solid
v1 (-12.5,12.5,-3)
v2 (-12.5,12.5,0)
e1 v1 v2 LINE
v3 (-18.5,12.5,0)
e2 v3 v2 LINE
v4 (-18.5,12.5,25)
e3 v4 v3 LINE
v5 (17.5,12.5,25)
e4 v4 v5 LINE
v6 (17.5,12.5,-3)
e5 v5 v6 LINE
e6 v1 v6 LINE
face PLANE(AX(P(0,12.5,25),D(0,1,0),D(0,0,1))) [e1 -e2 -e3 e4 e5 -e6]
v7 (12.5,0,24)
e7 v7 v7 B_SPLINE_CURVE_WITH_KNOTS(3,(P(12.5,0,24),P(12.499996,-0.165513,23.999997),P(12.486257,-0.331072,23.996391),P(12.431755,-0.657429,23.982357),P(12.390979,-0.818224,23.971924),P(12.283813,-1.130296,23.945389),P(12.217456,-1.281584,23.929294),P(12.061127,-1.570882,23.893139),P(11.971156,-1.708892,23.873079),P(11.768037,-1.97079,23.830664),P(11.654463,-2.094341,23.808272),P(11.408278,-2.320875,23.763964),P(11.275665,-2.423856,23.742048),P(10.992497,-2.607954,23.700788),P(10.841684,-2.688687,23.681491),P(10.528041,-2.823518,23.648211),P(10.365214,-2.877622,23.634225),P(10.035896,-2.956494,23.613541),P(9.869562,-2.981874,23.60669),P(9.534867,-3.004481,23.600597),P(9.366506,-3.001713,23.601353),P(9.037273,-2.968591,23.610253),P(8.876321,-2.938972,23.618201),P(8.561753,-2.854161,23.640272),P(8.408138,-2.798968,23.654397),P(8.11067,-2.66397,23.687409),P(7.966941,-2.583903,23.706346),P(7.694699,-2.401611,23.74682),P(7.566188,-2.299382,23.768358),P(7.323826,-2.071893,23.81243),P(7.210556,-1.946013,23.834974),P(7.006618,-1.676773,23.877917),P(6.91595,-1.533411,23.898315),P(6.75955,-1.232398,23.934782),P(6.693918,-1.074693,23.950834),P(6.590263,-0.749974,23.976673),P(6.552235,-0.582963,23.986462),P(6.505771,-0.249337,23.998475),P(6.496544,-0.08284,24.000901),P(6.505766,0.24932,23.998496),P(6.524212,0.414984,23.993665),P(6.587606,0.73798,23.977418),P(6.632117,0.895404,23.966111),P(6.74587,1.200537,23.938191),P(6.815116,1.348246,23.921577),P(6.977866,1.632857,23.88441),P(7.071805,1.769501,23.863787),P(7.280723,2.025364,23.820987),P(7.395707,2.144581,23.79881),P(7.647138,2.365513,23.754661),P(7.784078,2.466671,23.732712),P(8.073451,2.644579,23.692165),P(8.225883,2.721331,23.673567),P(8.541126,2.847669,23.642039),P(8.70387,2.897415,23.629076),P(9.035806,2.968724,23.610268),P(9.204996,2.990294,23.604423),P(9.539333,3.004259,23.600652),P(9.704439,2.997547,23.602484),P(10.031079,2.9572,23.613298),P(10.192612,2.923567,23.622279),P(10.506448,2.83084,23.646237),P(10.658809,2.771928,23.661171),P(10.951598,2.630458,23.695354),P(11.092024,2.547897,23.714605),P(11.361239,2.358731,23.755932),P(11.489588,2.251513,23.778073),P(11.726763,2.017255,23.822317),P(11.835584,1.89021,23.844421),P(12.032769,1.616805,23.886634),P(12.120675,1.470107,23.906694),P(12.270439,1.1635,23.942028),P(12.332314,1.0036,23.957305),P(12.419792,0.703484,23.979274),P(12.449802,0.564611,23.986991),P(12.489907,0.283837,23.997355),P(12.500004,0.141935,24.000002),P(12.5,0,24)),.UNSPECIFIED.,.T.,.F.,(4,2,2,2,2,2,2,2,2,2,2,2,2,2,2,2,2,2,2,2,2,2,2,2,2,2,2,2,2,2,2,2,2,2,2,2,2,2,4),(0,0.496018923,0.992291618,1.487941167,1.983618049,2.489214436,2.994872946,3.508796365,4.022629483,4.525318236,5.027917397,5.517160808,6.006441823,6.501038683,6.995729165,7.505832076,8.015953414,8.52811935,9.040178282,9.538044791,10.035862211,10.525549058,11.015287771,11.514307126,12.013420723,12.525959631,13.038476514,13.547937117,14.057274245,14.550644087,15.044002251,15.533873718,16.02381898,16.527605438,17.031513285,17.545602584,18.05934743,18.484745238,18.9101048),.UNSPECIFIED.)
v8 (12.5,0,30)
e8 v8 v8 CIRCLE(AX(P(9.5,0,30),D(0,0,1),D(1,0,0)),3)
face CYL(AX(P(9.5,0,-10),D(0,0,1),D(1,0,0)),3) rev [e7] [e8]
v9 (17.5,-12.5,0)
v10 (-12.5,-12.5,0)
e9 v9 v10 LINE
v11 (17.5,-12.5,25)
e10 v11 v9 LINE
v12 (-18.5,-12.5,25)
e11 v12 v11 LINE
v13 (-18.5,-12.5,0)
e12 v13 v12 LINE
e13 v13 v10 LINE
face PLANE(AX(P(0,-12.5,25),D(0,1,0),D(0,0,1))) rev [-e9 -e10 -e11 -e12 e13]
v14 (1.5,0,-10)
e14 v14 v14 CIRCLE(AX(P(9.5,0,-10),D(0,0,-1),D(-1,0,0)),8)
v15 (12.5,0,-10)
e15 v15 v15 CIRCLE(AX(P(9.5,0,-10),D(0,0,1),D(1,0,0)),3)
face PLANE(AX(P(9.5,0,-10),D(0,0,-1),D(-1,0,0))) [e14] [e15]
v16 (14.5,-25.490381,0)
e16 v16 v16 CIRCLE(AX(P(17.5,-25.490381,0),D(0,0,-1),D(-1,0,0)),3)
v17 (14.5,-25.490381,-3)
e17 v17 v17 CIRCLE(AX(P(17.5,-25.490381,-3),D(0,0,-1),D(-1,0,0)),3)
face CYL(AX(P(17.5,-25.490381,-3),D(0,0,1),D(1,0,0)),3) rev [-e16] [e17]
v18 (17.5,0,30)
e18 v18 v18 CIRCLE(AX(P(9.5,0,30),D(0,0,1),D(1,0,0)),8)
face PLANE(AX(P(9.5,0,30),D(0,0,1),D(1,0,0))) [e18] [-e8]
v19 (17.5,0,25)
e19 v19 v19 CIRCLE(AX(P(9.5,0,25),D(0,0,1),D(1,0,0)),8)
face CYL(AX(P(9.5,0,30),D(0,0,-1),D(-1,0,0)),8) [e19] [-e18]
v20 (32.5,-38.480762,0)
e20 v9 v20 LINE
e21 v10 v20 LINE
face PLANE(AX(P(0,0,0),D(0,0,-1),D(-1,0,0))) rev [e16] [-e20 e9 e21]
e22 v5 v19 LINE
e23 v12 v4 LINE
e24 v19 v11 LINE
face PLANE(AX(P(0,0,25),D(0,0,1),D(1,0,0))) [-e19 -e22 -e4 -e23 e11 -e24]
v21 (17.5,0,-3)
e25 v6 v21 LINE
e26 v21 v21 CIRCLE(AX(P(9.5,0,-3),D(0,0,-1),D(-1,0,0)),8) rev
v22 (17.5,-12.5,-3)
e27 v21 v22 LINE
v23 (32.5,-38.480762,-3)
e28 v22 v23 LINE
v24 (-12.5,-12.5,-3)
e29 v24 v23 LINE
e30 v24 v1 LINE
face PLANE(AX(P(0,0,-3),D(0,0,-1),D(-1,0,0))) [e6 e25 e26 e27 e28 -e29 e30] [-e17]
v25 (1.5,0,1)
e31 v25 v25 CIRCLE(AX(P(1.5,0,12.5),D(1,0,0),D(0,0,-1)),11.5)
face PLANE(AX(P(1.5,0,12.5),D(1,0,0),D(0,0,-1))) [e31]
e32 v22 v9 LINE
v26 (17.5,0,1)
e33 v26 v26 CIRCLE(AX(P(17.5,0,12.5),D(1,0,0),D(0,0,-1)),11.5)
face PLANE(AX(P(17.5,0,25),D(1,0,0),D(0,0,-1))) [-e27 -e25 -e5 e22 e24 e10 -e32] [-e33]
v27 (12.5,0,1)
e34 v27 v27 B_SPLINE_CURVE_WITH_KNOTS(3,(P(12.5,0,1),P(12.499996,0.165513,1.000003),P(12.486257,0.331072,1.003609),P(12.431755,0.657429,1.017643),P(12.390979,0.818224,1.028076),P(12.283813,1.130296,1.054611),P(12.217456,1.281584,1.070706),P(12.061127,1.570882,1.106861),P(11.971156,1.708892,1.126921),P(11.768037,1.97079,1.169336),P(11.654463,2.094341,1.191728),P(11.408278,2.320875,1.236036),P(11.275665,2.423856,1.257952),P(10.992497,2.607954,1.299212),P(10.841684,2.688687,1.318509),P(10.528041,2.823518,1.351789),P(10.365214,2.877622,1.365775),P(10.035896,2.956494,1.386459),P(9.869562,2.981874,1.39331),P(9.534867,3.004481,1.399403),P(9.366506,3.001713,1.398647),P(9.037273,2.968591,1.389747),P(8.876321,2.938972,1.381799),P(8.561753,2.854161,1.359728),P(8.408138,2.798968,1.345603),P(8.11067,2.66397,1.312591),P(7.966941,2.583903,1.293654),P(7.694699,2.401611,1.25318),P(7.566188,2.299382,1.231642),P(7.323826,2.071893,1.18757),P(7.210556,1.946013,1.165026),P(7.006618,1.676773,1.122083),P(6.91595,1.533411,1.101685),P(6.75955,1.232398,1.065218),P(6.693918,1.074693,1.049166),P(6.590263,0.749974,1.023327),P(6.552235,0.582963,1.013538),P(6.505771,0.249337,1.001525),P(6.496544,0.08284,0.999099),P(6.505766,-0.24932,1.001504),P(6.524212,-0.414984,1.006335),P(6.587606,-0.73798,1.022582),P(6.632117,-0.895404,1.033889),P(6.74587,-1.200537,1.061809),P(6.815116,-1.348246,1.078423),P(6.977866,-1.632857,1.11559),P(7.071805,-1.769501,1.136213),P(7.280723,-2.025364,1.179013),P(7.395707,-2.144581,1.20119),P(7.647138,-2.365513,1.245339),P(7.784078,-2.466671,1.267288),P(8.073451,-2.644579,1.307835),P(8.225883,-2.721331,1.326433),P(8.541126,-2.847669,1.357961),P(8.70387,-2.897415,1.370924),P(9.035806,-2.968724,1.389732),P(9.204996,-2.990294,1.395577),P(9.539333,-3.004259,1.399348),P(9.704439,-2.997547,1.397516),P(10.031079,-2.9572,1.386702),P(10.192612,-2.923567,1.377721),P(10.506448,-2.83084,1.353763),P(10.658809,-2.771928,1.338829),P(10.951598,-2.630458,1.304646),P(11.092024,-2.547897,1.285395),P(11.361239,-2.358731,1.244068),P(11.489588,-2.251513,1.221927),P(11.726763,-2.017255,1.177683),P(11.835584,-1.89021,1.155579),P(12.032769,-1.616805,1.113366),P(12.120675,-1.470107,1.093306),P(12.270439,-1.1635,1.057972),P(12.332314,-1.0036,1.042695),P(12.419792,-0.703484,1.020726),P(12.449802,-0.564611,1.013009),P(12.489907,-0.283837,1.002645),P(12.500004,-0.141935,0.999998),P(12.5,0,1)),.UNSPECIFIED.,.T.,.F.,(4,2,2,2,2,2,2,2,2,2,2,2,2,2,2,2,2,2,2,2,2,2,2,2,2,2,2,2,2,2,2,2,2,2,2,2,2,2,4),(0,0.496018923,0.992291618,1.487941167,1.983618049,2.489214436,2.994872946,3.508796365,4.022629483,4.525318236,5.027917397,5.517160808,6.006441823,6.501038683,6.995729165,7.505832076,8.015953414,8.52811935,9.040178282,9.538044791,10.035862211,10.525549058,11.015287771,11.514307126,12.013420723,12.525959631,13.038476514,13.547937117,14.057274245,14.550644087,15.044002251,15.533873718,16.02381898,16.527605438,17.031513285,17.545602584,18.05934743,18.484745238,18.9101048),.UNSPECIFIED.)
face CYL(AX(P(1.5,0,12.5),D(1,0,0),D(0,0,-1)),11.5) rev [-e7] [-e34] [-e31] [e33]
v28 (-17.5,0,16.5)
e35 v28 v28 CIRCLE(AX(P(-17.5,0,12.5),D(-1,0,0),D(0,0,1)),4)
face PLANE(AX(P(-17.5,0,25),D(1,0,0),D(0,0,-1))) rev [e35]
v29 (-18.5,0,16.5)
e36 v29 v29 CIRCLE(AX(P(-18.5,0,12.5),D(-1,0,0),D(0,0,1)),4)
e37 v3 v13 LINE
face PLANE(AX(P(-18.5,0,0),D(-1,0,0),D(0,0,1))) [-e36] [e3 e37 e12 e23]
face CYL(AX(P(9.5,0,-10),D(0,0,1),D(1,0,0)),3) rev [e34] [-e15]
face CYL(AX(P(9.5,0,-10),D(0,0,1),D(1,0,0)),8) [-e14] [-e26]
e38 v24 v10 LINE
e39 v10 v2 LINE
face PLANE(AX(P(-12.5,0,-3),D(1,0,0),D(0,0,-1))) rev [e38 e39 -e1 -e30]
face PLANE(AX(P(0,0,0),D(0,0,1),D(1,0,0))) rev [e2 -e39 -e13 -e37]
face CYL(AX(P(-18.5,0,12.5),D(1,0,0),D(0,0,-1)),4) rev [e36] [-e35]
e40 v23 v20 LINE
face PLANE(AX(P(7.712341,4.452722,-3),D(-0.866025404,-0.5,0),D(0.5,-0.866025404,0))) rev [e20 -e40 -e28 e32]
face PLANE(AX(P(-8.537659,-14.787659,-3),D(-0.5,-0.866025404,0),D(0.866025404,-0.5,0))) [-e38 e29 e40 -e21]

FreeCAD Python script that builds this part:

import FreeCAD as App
import Part
import Sketcher
Q = App.Units.Quantity

doc = App.newDocument("Part")
body = doc.addObject("PartDesign::Body", "Body")

# Sketch on XY plane
sketch1 = body.newObject("Sketcher::SketchObject", "Sketch")
sketch1.AttachmentSupport = (doc.getObject("XY_Plane"), [""])
sketch1.MapMode = "FlatFace"
sketch1.addGeometry([
    Part.LineSegment(App.Vector(-18, 12, 0), App.Vector(-18, -12, 0)),
    Part.LineSegment(App.Vector(-18, -12, 0), App.Vector(18, -12, 0)),
    Part.LineSegment(App.Vector(18, -12, 0), App.Vector(18, 12, 0)),
    Part.LineSegment(App.Vector(18, 12, 0), App.Vector(-18, 12, 0)),
], False)
sketch1.addConstraint([
    Sketcher.Constraint("Coincident", 0, 2, 1, 1),
    Sketcher.Constraint("Coincident", 1, 2, 2, 1),
    Sketcher.Constraint("Coincident", 2, 2, 3, 1),
    Sketcher.Constraint("Coincident", 3, 2, 0, 1),
    Sketcher.Constraint("Vertical", 0),
    Sketcher.Constraint("Horizontal", 1),
    Sketcher.Constraint("Vertical", 2),
    Sketcher.Constraint("Horizontal", 3),
    Sketcher.Constraint("Symmetric", 0, 2, 2, 2, -1, 1),
    Sketcher.Constraint("DistanceX", 1, 1, 1, 2, Q("35 mm")),
    Sketcher.Constraint("DistanceY", 0, 2, 0, 1, Q("25 mm")),
])
pad1 = body.newObject("PartDesign::Pad", "Pad")
pad1.Profile = sketch1
pad1.Length = 25

# Sketch on XY plane
sketch2 = body.newObject("Sketcher::SketchObject", "Sketch001")
sketch2.AttachmentSupport = (doc.getObject("XY_Plane"), [""])
sketch2.MapMode = "FlatFace"
sketch2.AttachmentOffset = App.Placement(App.Vector(0, 0, 25), App.Rotation())
sketch2.addGeometry(Part.Circle(App.Vector(10, 0, 0), App.Vector(0, 0, 1), 8), False)
sketch2.addConstraint([
    Sketcher.Constraint("PointOnObject", 0, 3, -1),
    Sketcher.Constraint("Diameter", 0, Q("16 mm")),
    Sketcher.Constraint("DistanceX", -1, 1, 0, 3, Q("9.5 mm")),
])
pad2 = body.newObject("PartDesign::Pad", "Pad001")
pad2.Profile = sketch2
pad2.Length = 5

# Sketch on XY plane
sketch3 = body.newObject("Sketcher::SketchObject", "Sketch002")
sketch3.AttachmentSupport = (doc.getObject("XY_Plane"), [""])
sketch3.MapMode = "FlatFace"
sketch3.AttachmentOffset = App.Placement(App.Vector(0, 0, -10), App.Rotation())
sketch3.addGeometry(Part.Circle(App.Vector(10, 0, 0), App.Vector(0, 0, 1), 8), False)
sketch3.addConstraint([
    Sketcher.Constraint("PointOnObject", 0, 3, -1),
    Sketcher.Constraint("Diameter", 0, Q("16 mm")),
    Sketcher.Constraint("DistanceX", -1, 1, 0, 3, Q("9.5 mm")),
])
pad3 = body.newObject("PartDesign::Pad", "Pad002")
pad3.Profile = sketch3
pad3.Length = 10

# Sketch on XY plane
sketch4 = body.newObject("Sketcher::SketchObject", "Sketch003")
sketch4.AttachmentSupport = (doc.getObject("XY_Plane"), [""])
sketch4.MapMode = "FlatFace"
sketch4.AttachmentOffset = App.Placement(App.Vector(0, 0, 30), App.Rotation())
sketch4.addGeometry(Part.Circle(App.Vector(9.5, 0, 0), App.Vector(0, 0, 1), 3), False)
sketch4.addConstraint([
    Sketcher.Constraint("PointOnObject", 0, 3, -1),
    Sketcher.Constraint("Diameter", 0, Q("6 mm")),
    Sketcher.Constraint("DistanceX", -1, 1, 0, 3, Q("9.5 mm")),
])
pocket1 = body.newObject("PartDesign::Pocket", "Pocket")
pocket1.Profile = sketch4
pocket1.Type = "ThroughAll"

# Sketch on YZ plane
sketch5 = body.newObject("Sketcher::SketchObject", "Sketch004")
sketch5.AttachmentSupport = (doc.getObject("YZ_Plane"), [""])
sketch5.MapMode = "FlatFace"
sketch5.AttachmentOffset = App.Placement(App.Vector(0, 0, 17.5), App.Rotation())
sketch5.addGeometry(Part.Circle(App.Vector(0, 12, 0), App.Vector(0, 0, 1), 12), False)
sketch5.addConstraint([
    Sketcher.Constraint("PointOnObject", 0, 3, -2),
    Sketcher.Constraint("Diameter", 0, Q("23 mm")),
    Sketcher.Constraint("DistanceY", -1, 1, 0, 3, Q("12.5 mm")),
])
pocket2 = body.newObject("PartDesign::Pocket", "Pocket001")
pocket2.Profile = sketch5
pocket2.Length = 16

# Sketch on YZ plane
sketch6 = body.newObject("Sketcher::SketchObject", "Sketch005")
sketch6.AttachmentSupport = (doc.getObject("YZ_Plane"), [""])
sketch6.MapMode = "FlatFace"
sketch6.AttachmentOffset = App.Placement(App.Vector(0, 0, -17.5), App.Rotation())
sketch6.addGeometry(Part.Circle(App.Vector(0, 12.5, 0), App.Vector(0, 0, 1), 4), False)
sketch6.addConstraint([
    Sketcher.Constraint("PointOnObject", 0, 3, -2),
    Sketcher.Constraint("Diameter", 0, Q("8 mm")),
    Sketcher.Constraint("DistanceY", -1, 1, 0, 3, Q("12.5 mm")),
])
pad4 = body.newObject("PartDesign::Pad", "Pad003")
pad4.Profile = sketch6
pad4.Length = 15
pad4.Reversed = True

# Sketch on YZ plane
sketch7 = body.newObject("Sketcher::SketchObject", "Sketch006")
sketch7.AttachmentSupport = (doc.getObject("YZ_Plane"), [""])
sketch7.MapMode = "FlatFace"
sketch7.AttachmentOffset = App.Placement(App.Vector(0, 0, -17.5), App.Rotation())
sketch7.addGeometry([
    Part.LineSegment(App.Vector(1, 15.5, 0), App.Vector(-1, 15.5, 0)),
    Part.LineSegment(App.Vector(-1, 15.5, 0), App.Vector(-1, 18.5, 0)),
    Part.LineSegment(App.Vector(-1, 18.5, 0), App.Vector(1, 18.5, 0)),
    Part.LineSegment(App.Vector(1, 18.5, 0), App.Vector(1, 15.5, 0)),
], False)
sketch7.addConstraint([
    Sketcher.Constraint("Coincident", 0, 2, 1, 1),
    Sketcher.Constraint("Coincident", 1, 2, 2, 1),
    Sketcher.Constraint("Coincident", 2, 2, 3, 1),
    Sketcher.Constraint("Coincident", 3, 2, 0, 1),
    Sketcher.Constraint("Horizontal", 0),
    Sketcher.Constraint("Vertical", 1),
    Sketcher.Constraint("Horizontal", 2),
    Sketcher.Constraint("Vertical", 3),
    Sketcher.Constraint("DistanceY", 1, 1, 1, 2, Q("3 mm")),
    Sketcher.Constraint("DistanceY", -1, 1, 0, 2, Q("15.5 mm")),
    Sketcher.Constraint("DistanceX", 0, 2, 0, 1, Q("2.025473 mm")),
    Sketcher.Constraint("DistanceX", 0, 2, -1, 1, Q("1.012736 mm")),
])
pocket3 = body.newObject("PartDesign::Pocket", "Pocket002")
pocket3.Profile = sketch7
pocket3.Length = 15

# Sketch on YZ plane
sketch8 = body.newObject("Sketcher::SketchObject", "Sketch007")
sketch8.AttachmentSupport = (doc.getObject("YZ_Plane"), [""])
sketch8.MapMode = "FlatFace"
sketch8.AttachmentOffset = App.Placement(App.Vector(0, 0, -30.5), App.Rotation())
sketch8.addGeometry(Part.Circle(App.Vector(0, 12.5, 0), App.Vector(0, 0, 1), 4), False)
sketch8.addConstraint([
    Sketcher.Constraint("PointOnObject", 0, 3, -2),
    Sketcher.Constraint("Diameter", 0, Q("8 mm")),
    Sketcher.Constraint("DistanceY", -1, 1, 0, 3, Q("12.5 mm")),
])
pad5 = body.newObject("PartDesign::Pad", "Pad004")
pad5.Profile = sketch8
pad5.Length = 2
pad5.Reversed = True

# Sketch on YZ plane
sketch9 = body.newObject("Sketcher::SketchObject", "Sketch008")
sketch9.AttachmentSupport = (doc.getObject("YZ_Plane"), [""])
sketch9.MapMode = "FlatFace"
sketch9.AttachmentOffset = App.Placement(App.Vector(0, 0, -17.5), App.Rotation())
sketch9.addGeometry(Part.Circle(App.Vector(0, 12.5, 0), App.Vector(0, 0, 1), 4), False)
sketch9.addConstraint([
    Sketcher.Constraint("PointOnObject", 0, 3, -2),
    Sketcher.Constraint("Diameter", 0, Q("8 mm")),
    Sketcher.Constraint("DistanceY", -1, 1, 0, 3, Q("12.5 mm")),
])
pad6 = body.newObject("PartDesign::Pad", "Pad005")
pad6.Profile = sketch9
pad6.Length = 2
pad6.Reversed = True

# Sketch on XY plane
sketch10 = body.newObject("Sketcher::SketchObject", "Sketch009")
sketch10.AttachmentSupport = (doc.getObject("XY_Plane"), [""])
sketch10.MapMode = "FlatFace"
sketch10.AttachmentOffset = App.Placement(App.Vector(0, 0, -3), App.Rotation())
sketch10.addGeometry([
    Part.LineSegment(App.Vector(-12.5, 12.5, 0), App.Vector(24.1, 12.5, 0)),  # 0
    Part.LineSegment(App.Vector(24.1, 12.5, 0), App.Vector(24.1, -12.5, 0)),  # 1
    Part.LineSegment(App.Vector(24.1, -12.5, 0), App.Vector(17.5, -12.5, 0)),  # 2
    Part.LineSegment(App.Vector(17.5, -12.5, 0), App.Vector(32.5, -38.5, 0)),  # 3
    Part.LineSegment(App.Vector(32.5, -38.5, 0), App.Vector(-12.5, -12.5, 0)),  # 4
    Part.LineSegment(App.Vector(-12.5, -12.5, 0), App.Vector(-12.5, 12.5, 0)),  # 5
    Part.Circle(App.Vector(17.5, -25.5, 0), App.Vector(0, 0, 1), 3),  # 6
    Part.Circle(App.Vector(9.5, 0, 0), App.Vector(0, 0, 1), 8),  # 7
], False)
sketch10.addConstraint([
    Sketcher.Constraint("Coincident", 0, 2, 1, 1),
    Sketcher.Constraint("Coincident", 1, 2, 2, 1),
    Sketcher.Constraint("Coincident", 2, 2, 3, 1),
    Sketcher.Constraint("Coincident", 3, 2, 4, 1),
    Sketcher.Constraint("Coincident", 4, 2, 5, 1),
    Sketcher.Constraint("Coincident", 5, 2, 0, 1),
    Sketcher.Constraint("Horizontal", 0),
    Sketcher.Constraint("Vertical", 1),
    Sketcher.Constraint("Horizontal", 2),
    Sketcher.Constraint("Vertical", 5),
    Sketcher.Constraint("PointOnObject", 7, 3, -1),
    Sketcher.Constraint("Horizontal", 2, 2, 4, 2),
    Sketcher.Constraint("Vertical", 6, 3, 2, 2),
    Sketcher.Constraint("Diameter", 6, Q("6 mm")),
    Sketcher.Constraint("Diameter", 7, Q("16 mm")),
    Sketcher.Constraint("DistanceY", 1, 2, 1, 1, Q("25 mm")),
    Sketcher.Constraint("Angle", 3, Q("-60 deg")),
    Sketcher.Constraint("Angle", 4, Q("150 deg")),
    Sketcher.Constraint("Distance", 3, Q("30 mm")),
    Sketcher.Constraint("DistanceX", 7, 3, 6, 3, Q("8 mm")),
    Sketcher.Constraint("DistanceX", -1, 1, 6, 3, Q("17.5 mm")),
    Sketcher.Constraint("DistanceY", -1, 1, 0, 2, Q("12.5 mm")),
    Sketcher.Constraint("DistanceX", 0, 1, 0, 2, Q("36.627878 mm")),
    Sketcher.Constraint("DistanceY", 6, 3, -1, 1, Q("25.490381 mm")),
])
pad7 = body.newObject("PartDesign::Pad", "Pad006")
pad7.Profile = sketch10
pad7.Length = 3

# Sketch on XY plane
sketch11 = body.newObject("Sketcher::SketchObject", "Sketch010")
sketch11.AttachmentSupport = (doc.getObject("XY_Plane"), [""])
sketch11.MapMode = "FlatFace"
sketch11.addGeometry([
    Part.LineSegment(App.Vector(18, 12, 0), App.Vector(18, -12, 0)),
    Part.LineSegment(App.Vector(18, -12, 0), App.Vector(24, -12, 0)),
    Part.LineSegment(App.Vector(24, -12, 0), App.Vector(24, 12, 0)),
    Part.LineSegment(App.Vector(24, 12, 0), App.Vector(18, 12, 0)),
], False)
sketch11.addConstraint([
    Sketcher.Constraint("Coincident", 0, 2, 1, 1),
    Sketcher.Constraint("Coincident", 1, 2, 2, 1),
    Sketcher.Constraint("Coincident", 2, 2, 3, 1),
    Sketcher.Constraint("Coincident", 3, 2, 0, 1),
    Sketcher.Constraint("Vertical", 0),
    Sketcher.Constraint("Horizontal", 1),
    Sketcher.Constraint("Vertical", 2),
    Sketcher.Constraint("Horizontal", 3),
    Sketcher.Constraint("DistanceY", 0, 2, 0, 1, Q("25 mm")),
    Sketcher.Constraint("DistanceX", -1, 1, 0, 2, Q("17.5 mm")),
    Sketcher.Constraint("DistanceY", 0, 2, -1, 1, Q("12.5 mm")),
    Sketcher.Constraint("DistanceX", 1, 1, 1, 2, Q("6.627878 mm")),
])
pocket4 = body.newObject("PartDesign::Pocket", "Pocket003")
pocket4.Profile = sketch11
pocket4.Length = 3

# Sketch on YZ plane
sketch12 = body.newObject("Sketcher::SketchObject", "Sketch011")
sketch12.AttachmentSupport = (doc.getObject("YZ_Plane"), [""])
sketch12.MapMode = "FlatFace"
sketch12.AttachmentOffset = App.Placement(App.Vector(0, 0, -17.5), App.Rotation())
sketch12.addGeometry([
    Part.LineSegment(App.Vector(12, 0, 0), App.Vector(-12, 0, 0)),
    Part.LineSegment(App.Vector(-12, 0, 0), App.Vector(-12, 25, 0)),
    Part.LineSegment(App.Vector(-12, 25, 0), App.Vector(12, 25, 0)),
    Part.LineSegment(App.Vector(12, 25, 0), App.Vector(12, 0, 0)),
], False)
sketch12.addConstraint([
    Sketcher.Constraint("Coincident", 0, 2, 1, 1),
    Sketcher.Constraint("Coincident", 1, 2, 2, 1),
    Sketcher.Constraint("Coincident", 2, 2, 3, 1),
    Sketcher.Constraint("Coincident", 3, 2, 0, 1),
    Sketcher.Constraint("Horizontal", 0),
    Sketcher.Constraint("Vertical", 1),
    Sketcher.Constraint("Horizontal", 2),
    Sketcher.Constraint("Vertical", 3),
    Sketcher.Constraint("Symmetric", 0, 2, 3, 2, -1, 1),
    Sketcher.Constraint("Equal", 2, 1),
    Sketcher.Constraint("DistanceX", 0, 2, 0, 1, Q("25 mm")),
])
pocket5 = body.newObject("PartDesign::Pocket", "Pocket004")
pocket5.Profile = sketch12
pocket5.Type = "ThroughAll"

# Sketch on YZ plane
sketch13 = body.newObject("Sketcher::SketchObject", "Sketch012")
sketch13.AttachmentSupport = (doc.getObject("YZ_Plane"), [""])
sketch13.MapMode = "FlatFace"
sketch13.AttachmentOffset = App.Placement(App.Vector(0, 0, -17.5), App.Rotation())
sketch13.addGeometry([
    Part.LineSegment(App.Vector(12.5, 0, 0), App.Vector(-12.5, 0, 0)),  # 0
    Part.LineSegment(App.Vector(-12.5, 0, 0), App.Vector(-12.5, 25, 0)),  # 1
    Part.LineSegment(App.Vector(-12.5, 25, 0), App.Vector(12.5, 25, 0)),  # 2
    Part.LineSegment(App.Vector(12.5, 25, 0), App.Vector(12.5, 0, 0)),  # 3
    Part.Circle(App.Vector(0, 12.5, 0), App.Vector(0, 0, 1), 4),  # 4
], False)
sketch13.addConstraint([
    Sketcher.Constraint("Coincident", 0, 2, 1, 1),
    Sketcher.Constraint("Coincident", 1, 2, 2, 1),
    Sketcher.Constraint("Coincident", 2, 2, 3, 1),
    Sketcher.Constraint("Coincident", 3, 2, 0, 1),
    Sketcher.Constraint("Horizontal", 0),
    Sketcher.Constraint("Vertical", 1),
    Sketcher.Constraint("Horizontal", 2),
    Sketcher.Constraint("Vertical", 3),
    Sketcher.Constraint("Symmetric", 0, 2, 3, 2, -1, 1),
    Sketcher.Constraint("PointOnObject", 4, 3, -2),
    Sketcher.Constraint("Equal", 2, 1),
    Sketcher.Constraint("Diameter", 4, Q("8 mm")),
    Sketcher.Constraint("DistanceX", 0, 2, 0, 1, Q("25 mm")),
    Sketcher.Constraint("DistanceY", -1, 1, 4, 3, Q("12.5 mm")),
])
pad8 = body.newObject("PartDesign::Pad", "Pad007")
pad8.Profile = sketch13
pad8.Length = 1
pad8.Reversed = True

doc.recompute()
